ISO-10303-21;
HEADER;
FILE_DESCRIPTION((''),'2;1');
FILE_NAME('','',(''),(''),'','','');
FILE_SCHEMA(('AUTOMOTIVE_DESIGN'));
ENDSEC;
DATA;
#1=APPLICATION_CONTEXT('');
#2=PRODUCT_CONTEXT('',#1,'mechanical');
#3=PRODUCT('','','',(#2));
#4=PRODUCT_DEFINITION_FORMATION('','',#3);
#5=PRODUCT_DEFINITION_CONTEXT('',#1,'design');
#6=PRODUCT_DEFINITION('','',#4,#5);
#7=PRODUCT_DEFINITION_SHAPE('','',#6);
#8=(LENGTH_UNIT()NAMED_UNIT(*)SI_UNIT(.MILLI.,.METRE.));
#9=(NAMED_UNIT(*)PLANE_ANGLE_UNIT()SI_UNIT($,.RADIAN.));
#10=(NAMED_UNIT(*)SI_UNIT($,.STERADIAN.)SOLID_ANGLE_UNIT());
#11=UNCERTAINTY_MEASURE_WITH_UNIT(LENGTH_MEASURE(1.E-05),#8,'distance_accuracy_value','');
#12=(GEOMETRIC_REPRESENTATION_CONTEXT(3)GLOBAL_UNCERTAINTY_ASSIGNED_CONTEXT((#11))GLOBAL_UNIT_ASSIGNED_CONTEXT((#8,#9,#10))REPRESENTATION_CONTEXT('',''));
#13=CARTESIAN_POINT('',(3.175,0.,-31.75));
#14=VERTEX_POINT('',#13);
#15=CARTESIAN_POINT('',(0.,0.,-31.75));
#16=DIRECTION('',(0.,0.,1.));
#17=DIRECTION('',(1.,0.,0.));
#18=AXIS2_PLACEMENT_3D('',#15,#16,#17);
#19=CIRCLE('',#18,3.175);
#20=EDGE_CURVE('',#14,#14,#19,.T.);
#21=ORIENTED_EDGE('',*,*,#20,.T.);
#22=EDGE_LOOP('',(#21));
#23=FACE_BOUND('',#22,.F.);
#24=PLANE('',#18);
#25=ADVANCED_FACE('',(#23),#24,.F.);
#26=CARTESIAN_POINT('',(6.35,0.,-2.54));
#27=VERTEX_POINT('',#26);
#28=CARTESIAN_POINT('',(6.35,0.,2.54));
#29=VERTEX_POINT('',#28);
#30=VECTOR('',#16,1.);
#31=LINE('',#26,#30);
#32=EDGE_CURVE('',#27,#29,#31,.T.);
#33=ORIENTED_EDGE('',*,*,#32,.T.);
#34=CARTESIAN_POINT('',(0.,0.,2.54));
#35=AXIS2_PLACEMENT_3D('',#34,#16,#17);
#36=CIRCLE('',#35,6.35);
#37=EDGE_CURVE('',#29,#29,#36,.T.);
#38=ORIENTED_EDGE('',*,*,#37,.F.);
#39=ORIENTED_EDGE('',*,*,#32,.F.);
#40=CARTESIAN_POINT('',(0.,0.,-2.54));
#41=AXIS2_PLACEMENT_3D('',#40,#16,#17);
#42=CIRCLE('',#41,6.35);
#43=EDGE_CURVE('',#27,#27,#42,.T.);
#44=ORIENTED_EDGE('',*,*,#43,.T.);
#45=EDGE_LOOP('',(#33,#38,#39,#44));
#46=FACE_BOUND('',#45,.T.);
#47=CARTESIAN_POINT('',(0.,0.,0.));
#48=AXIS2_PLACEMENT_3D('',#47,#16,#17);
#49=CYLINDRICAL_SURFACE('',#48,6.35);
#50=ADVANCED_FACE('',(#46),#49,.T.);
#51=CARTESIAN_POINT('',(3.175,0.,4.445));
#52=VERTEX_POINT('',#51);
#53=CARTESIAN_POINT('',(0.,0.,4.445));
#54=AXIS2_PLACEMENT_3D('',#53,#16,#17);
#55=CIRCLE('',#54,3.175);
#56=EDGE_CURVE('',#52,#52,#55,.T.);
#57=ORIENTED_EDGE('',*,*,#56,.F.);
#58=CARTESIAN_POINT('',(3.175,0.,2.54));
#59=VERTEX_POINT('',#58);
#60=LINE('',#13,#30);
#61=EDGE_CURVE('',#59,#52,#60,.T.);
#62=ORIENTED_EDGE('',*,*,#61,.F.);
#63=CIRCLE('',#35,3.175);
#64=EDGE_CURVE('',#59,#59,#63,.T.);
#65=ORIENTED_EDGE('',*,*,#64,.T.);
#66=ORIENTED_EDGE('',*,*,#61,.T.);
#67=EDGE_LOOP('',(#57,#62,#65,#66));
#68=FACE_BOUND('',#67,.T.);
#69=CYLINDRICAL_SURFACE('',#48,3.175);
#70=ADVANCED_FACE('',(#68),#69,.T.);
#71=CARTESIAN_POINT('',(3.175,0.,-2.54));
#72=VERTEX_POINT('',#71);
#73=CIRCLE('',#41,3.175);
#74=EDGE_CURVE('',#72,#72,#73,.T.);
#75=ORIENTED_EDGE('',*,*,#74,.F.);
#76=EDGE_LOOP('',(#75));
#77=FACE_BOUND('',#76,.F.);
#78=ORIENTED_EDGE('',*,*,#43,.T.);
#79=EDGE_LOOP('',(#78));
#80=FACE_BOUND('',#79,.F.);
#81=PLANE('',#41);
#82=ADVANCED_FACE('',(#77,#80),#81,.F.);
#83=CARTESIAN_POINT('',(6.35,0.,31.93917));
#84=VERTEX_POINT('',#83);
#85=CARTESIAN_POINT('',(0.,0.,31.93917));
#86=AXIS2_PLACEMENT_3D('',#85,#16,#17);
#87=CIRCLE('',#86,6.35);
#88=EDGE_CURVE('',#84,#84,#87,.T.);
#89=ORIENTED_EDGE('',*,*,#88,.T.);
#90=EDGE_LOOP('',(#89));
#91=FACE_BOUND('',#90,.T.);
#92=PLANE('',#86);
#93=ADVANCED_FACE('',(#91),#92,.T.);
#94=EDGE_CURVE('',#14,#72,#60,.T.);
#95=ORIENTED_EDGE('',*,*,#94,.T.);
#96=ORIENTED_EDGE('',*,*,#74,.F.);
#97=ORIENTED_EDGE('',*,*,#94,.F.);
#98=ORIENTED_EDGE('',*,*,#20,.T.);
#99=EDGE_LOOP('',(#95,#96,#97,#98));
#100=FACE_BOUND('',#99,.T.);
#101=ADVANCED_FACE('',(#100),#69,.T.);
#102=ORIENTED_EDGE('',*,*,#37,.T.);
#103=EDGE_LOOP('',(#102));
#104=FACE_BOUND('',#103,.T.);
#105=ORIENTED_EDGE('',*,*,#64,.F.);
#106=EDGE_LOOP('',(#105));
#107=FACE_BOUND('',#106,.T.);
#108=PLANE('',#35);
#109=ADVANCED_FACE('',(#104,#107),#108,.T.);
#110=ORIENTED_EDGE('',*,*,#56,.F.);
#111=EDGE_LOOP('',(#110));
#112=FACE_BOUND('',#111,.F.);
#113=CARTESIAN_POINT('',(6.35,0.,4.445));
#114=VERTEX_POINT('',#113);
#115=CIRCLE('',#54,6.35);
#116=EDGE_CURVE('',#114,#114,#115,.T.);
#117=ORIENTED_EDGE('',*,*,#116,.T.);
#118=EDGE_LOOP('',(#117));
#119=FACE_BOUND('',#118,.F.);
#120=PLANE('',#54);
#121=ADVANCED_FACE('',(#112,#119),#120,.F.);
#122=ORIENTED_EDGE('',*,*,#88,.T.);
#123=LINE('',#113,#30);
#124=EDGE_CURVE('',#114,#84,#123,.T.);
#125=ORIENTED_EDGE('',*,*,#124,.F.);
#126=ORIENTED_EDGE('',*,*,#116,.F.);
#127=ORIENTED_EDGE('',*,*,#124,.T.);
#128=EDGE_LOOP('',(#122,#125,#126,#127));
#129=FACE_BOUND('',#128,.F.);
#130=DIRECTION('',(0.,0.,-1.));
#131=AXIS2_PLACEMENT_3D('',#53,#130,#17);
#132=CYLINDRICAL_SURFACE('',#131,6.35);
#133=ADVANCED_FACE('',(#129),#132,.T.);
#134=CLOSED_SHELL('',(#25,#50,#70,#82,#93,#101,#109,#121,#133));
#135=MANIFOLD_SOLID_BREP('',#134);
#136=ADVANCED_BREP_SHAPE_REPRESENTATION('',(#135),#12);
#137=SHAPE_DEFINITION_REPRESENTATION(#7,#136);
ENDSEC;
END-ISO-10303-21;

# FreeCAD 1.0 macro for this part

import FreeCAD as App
import Part
import Sketcher
Q = App.Units.Quantity

doc = App.newDocument("Part")
params = doc.addObject("Spreadsheet::Sheet", "Params")
for row, (alias, value) in enumerate([
    ("sketch1_diameter", "0.25 in"),
    ("pad1_length", "2.5 in"),
    ("sketch2_diameter", "0.5 in"),
    ("pad2_length", "0.2 in"),
    ("sketch3_diameter", "0.5 in"),
    ("pad3_length", "27.49417 mm"),
], start=1):
    params.set(f"A{row}", alias)
    params.set(f"B{row}", "=" + value)
    params.setAlias(f"B{row}", alias)

body = doc.addObject("PartDesign::Body", "Body")

# Sketch on XY plane
sketch1 = body.newObject("Sketcher::SketchObject", "Sketch")
sketch1.AttachmentSupport = (doc.getObject("XY_Plane"), [""])
sketch1.MapMode = "FlatFace"
sketch1.addGeometry(Part.Circle(App.Vector(0, 0, 0), App.Vector(0, 0, 1), 3.2), False)
sketch1.addConstraint(Sketcher.Constraint("Coincident", 0, 3, -1, 1))
sketch1.addConstraint(Sketcher.Constraint("Diameter", 0, Q("0.25 in")))
sketch1.setExpression("Constraints[1]", "Params.sketch1_diameter")
pad1 = body.newObject("PartDesign::Pad", "Pad")
pad1.Profile = sketch1
pad1.setExpression("Length", "Params.pad1_length")
pad1.Midplane = True

# Sketch on XY plane
sketch2 = body.newObject("Sketcher::SketchObject", "Sketch001")
sketch2.AttachmentSupport = (doc.getObject("XY_Plane"), [""])
sketch2.MapMode = "FlatFace"
sketch2.addGeometry(Part.Circle(App.Vector(0, 0, 0), App.Vector(0, 0, 1), 6), False)
sketch2.addConstraint(Sketcher.Constraint("Coincident", 0, 3, -1, 1))
sketch2.addConstraint(Sketcher.Constraint("Diameter", 0, Q("0.5 in")))
sketch2.setExpression("Constraints[1]", "Params.sketch2_diameter")
pad2 = body.newObject("PartDesign::Pad", "Pad001")
pad2.Profile = sketch2
pad2.setExpression("Length", "Params.pad2_length")
pad2.Midplane = True

# Sketch on XY plane
sketch3 = body.newObject("Sketcher::SketchObject", "Sketch002")
sketch3.AttachmentSupport = (doc.getObject("XY_Plane"), [""])
sketch3.MapMode = "FlatFace"
sketch3.AttachmentOffset = App.Placement(App.Vector(0, 0, 0.175 * 25.4), App.Rotation())
sketch3.addGeometry(Part.Circle(App.Vector(0, 0, 0), App.Vector(0, 0, 1), 6), False)
sketch3.addConstraint(Sketcher.Constraint("Coincident", 0, 3, -1, 1))
sketch3.addConstraint(Sketcher.Constraint("Diameter", 0, Q("0.5 in")))
sketch3.setExpression("Constraints[1]", "Params.sketch3_diameter")
pad3 = body.newObject("PartDesign::Pad", "Pad002")
pad3.Profile = sketch3
pad3.setExpression("Length", "Params.pad3_length")

doc.recompute()
